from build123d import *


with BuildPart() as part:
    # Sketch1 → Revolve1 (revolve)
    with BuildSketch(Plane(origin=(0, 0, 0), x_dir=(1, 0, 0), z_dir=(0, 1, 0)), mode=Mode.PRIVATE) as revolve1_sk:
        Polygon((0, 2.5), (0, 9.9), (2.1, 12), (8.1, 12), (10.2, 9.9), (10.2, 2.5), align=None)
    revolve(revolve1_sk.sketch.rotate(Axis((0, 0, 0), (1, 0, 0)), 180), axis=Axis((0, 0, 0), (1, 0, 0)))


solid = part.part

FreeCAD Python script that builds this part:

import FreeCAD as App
import Part
import Sketcher
from FreeCAD import Vector
Q = App.Units.Quantity

doc = App.newDocument("Part")
body = doc.addObject("PartDesign::Body", "Body")

# Sketch on XZ plane
sketch1 = doc.addObject("Sketcher::SketchObject", "Sketch")
body.addObject(sketch1)
sketch1.AttachmentSupport = (doc.XZ_Plane, [""])
sketch1.MapMode = "FlatFace"
sketch1.addGeometry([
    Part.LineSegment(Vector(0, -9.9, 0), Vector(0, -2.5, 0)),  # 0
    Part.LineSegment(Vector(0, -2.5, 0), Vector(10.2, -2.5, 0)),  # 1
    Part.LineSegment(Vector(10.2, -2.5, 0), Vector(10.2, -9.9, 0)),  # 2
    Part.LineSegment(Vector(10.2, -9.9, 0), Vector(8.1, -12, 0)),  # 3
    Part.LineSegment(Vector(8.1, -12, 0), Vector(2.1, -12, 0)),  # 4
    Part.LineSegment(Vector(2.1, -12, 0), Vector(0, -9.9, 0)),  # 5
], False)
sketch1.addConstraint([
    Sketcher.Constraint("Coincident", 0, 2, 1, 1),
    Sketcher.Constraint("Coincident", 1, 2, 2, 1),
    Sketcher.Constraint("Coincident", 2, 2, 3, 1),
    Sketcher.Constraint("Coincident", 3, 2, 4, 1),
    Sketcher.Constraint("Coincident", 4, 2, 5, 1),
    Sketcher.Constraint("Coincident", 5, 2, 0, 1),
    Sketcher.Constraint("Vertical", 0),
    Sketcher.Constraint("Horizontal", 1),
    Sketcher.Constraint("Vertical", 2),
    Sketcher.Constraint("Horizontal", 4),
    Sketcher.Constraint("PointOnObject", 0, 2, -2),
    Sketcher.Constraint("Perpendicular", 3, 5),
    Sketcher.Constraint("Horizontal", 2, 2, 5, 2),
    Sketcher.Constraint("Equal", 3, 5),
    Sketcher.Constraint("DistanceX", 4, 2, 4, 1, Q("6 mm")),
    Sketcher.Constraint("DistanceX", 1, 1, 1, 2, Q("10.2 mm")),
    Sketcher.Constraint("DistanceY", 0, 1, 0, 2, Q("7.4 mm")),
    Sketcher.Constraint("DistanceY", 3, 2, -1, 1, Q("12 mm")),
])
revolution = doc.addObject("PartDesign::Revolution", "Revolution")
body.addObject(revolution)
revolution.Profile = sketch1
revolution.ReferenceAxis = (sketch1, ["H_Axis"])
revolution.Angle = 360

doc.recompute()
